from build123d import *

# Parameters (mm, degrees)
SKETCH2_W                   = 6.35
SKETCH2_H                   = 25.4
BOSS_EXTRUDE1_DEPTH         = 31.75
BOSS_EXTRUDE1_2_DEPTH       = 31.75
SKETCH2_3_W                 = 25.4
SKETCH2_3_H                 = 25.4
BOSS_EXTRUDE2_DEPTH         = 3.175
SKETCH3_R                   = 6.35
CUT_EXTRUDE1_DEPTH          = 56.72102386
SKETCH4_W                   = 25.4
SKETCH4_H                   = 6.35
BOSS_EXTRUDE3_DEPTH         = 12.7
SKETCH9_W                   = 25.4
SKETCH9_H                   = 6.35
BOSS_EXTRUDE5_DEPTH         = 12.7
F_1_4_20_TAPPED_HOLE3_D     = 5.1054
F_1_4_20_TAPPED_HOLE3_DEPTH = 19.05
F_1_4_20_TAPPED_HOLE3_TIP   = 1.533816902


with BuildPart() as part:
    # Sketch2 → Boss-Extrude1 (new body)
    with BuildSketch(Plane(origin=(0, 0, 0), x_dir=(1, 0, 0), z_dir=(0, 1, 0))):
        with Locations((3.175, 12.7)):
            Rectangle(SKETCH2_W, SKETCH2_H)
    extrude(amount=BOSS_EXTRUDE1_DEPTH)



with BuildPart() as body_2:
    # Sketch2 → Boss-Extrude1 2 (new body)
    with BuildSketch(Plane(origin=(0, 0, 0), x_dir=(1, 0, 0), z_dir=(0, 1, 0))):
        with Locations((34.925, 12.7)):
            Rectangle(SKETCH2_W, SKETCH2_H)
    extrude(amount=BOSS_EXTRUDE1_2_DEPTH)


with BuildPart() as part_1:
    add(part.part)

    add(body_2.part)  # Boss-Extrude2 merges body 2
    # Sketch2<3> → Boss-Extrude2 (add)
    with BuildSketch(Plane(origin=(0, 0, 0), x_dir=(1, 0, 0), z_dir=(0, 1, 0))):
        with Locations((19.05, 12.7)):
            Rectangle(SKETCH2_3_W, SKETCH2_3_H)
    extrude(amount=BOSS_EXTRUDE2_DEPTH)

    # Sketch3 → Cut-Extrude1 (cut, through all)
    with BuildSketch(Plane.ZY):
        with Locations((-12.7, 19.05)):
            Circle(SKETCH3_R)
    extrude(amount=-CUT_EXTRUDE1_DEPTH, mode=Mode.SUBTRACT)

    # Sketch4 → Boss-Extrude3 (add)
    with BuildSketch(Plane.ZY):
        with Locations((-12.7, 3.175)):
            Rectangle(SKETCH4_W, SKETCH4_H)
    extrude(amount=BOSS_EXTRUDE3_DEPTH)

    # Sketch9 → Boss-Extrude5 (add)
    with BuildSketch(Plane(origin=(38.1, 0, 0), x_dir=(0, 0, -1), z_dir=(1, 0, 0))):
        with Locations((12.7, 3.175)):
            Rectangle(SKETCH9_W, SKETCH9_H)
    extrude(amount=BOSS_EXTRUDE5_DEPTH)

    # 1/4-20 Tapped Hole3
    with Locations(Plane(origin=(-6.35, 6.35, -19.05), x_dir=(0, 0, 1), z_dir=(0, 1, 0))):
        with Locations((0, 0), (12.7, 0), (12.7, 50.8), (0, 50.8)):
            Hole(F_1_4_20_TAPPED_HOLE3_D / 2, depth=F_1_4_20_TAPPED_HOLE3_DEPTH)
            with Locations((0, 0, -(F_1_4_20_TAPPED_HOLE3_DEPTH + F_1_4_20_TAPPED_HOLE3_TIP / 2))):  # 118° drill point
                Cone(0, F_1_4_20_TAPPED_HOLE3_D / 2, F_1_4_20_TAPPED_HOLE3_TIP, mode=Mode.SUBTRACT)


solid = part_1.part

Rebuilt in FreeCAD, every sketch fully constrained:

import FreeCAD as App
import Part
import Sketcher
Q = App.Units.Quantity

doc = App.newDocument("Part")
params = doc.addObject("Spreadsheet::Sheet", "Params")
for row, (alias, value) in enumerate([
    ("sketch1_height", "1 in"),
    ("sketch1_width", "0.25 in"),
    ("pad1_length", "1.25 in"),
    ("sketch2_height", "1 in"),
    ("sketch2_width", "0.25 in"),
    ("pad2_length", "1.25 in"),
    ("sketch3_width", "1 in"),
    ("pad3_length", "0.125 in"),
    ("sketch4_diameter", "0.5 in"),
    ("sketch5_height", "1 in"),
    ("sketch5_width", "0.25 in"),
    ("pad4_length", "0.5 in"),
    ("sketch6_height", "1 in"),
    ("sketch6_width", "0.25 in"),
    ("pad5_length", "0.5 in"),
    ("sketch7_diameter", "0.201 in"),
    ("hole_diameter", "0.201 in"),
    ("hole_depth", "0.75 in"),
], start=1):
    params.set(f"A{row}", alias)
    params.set(f"B{row}", "=" + value)
    params.setAlias(f"B{row}", alias)

body = doc.addObject("PartDesign::Body", "Body")

# Sketch on XZ plane
sketch1 = body.newObject("Sketcher::SketchObject", "Sketch")
sketch1.AttachmentSupport = (doc.getObject("XZ_Plane"), [""])
sketch1.MapMode = "FlatFace"
sketch1.addGeometry([
    Part.LineSegment(App.Vector(0, -25, 0), App.Vector(0, 0, 0)),
    Part.LineSegment(App.Vector(0, 0, 0), App.Vector(6, 0, 0)),
    Part.LineSegment(App.Vector(6, 0, 0), App.Vector(6, -25, 0)),
    Part.LineSegment(App.Vector(6, -25, 0), App.Vector(0, -25, 0)),
], False)
sketch1.addConstraint([
    Sketcher.Constraint("Coincident", 0, 2, 1, 1),
    Sketcher.Constraint("Coincident", 1, 2, 2, 1),
    Sketcher.Constraint("Coincident", 2, 2, 3, 1),
    Sketcher.Constraint("Coincident", 3, 2, 0, 1),
    Sketcher.Constraint("Vertical", 0),
    Sketcher.Constraint("Horizontal", 1),
    Sketcher.Constraint("Vertical", 2),
    Sketcher.Constraint("Horizontal", 3),
    Sketcher.Constraint("Coincident", 0, 2, -1, 1),
    Sketcher.Constraint("DistanceY", 0, 1, 0, 2, Q("1 in")),
    Sketcher.Constraint("DistanceX", 1, 1, 1, 2, Q("0.25 in")),
])
sketch1.setExpression("Constraints[9]", "Params.sketch1_height")
sketch1.setExpression("Constraints[10]", "Params.sketch1_width")
pad1 = body.newObject("PartDesign::Pad", "Pad")
pad1.Profile = sketch1
pad1.setExpression("Length", "Params.pad1_length")
pad1.Reversed = True
body2 = doc.addObject("PartDesign::Body", "Body001")

# Sketch on XZ plane
sketch2 = body2.newObject("Sketcher::SketchObject", "Sketch001")
sketch2.AttachmentSupport = (doc.getObject("XZ_Plane001"), [""])
sketch2.MapMode = "FlatFace"
sketch2.addGeometry([
    Part.LineSegment(App.Vector(32, -25, 0), App.Vector(32, 0, 0)),
    Part.LineSegment(App.Vector(32, 0, 0), App.Vector(38, 0, 0)),
    Part.LineSegment(App.Vector(38, 0, 0), App.Vector(38, -25, 0)),
    Part.LineSegment(App.Vector(38, -25, 0), App.Vector(32, -25, 0)),
], False)
sketch2.addConstraint([
    Sketcher.Constraint("Coincident", 0, 2, 1, 1),
    Sketcher.Constraint("Coincident", 1, 2, 2, 1),
    Sketcher.Constraint("Coincident", 2, 2, 3, 1),
    Sketcher.Constraint("Coincident", 3, 2, 0, 1),
    Sketcher.Constraint("Vertical", 0),
    Sketcher.Constraint("Horizontal", 1),
    Sketcher.Constraint("Vertical", 2),
    Sketcher.Constraint("Horizontal", 3),
    Sketcher.Constraint("PointOnObject", 0, 2, -1),
    Sketcher.Constraint("DistanceY", 0, 1, 0, 2, Q("1 in")),
    Sketcher.Constraint("DistanceX", 1, 1, 1, 2, Q("0.25 in")),
    Sketcher.Constraint("DistanceX", -1, 1, 1, 2, Q("1.5 in")),
])
sketch2.setExpression("Constraints[9]", "Params.sketch2_height")
sketch2.setExpression("Constraints[10]", "Params.sketch2_width")
pad2 = body2.newObject("PartDesign::Pad", "Pad001")
pad2.Profile = sketch2
pad2.setExpression("Length", "Params.pad2_length")
pad2.Reversed = True
body.AllowCompound = True
doc.recompute()

boolean = body.newObject("PartDesign::Boolean", "Boolean")
boolean.Type = "Fuse"
boolean.addObjects([body2])

# Sketch on XZ plane
sketch3 = body.newObject("Sketcher::SketchObject", "Sketch002")
sketch3.AttachmentSupport = (doc.getObject("XZ_Plane"), [""])
sketch3.MapMode = "FlatFace"
sketch3.addGeometry([
    Part.LineSegment(App.Vector(6, -25, 0), App.Vector(6, 0, 0)),
    Part.LineSegment(App.Vector(6, 0, 0), App.Vector(32, 0, 0)),
    Part.LineSegment(App.Vector(32, 0, 0), App.Vector(32, -25, 0)),
    Part.LineSegment(App.Vector(32, -25, 0), App.Vector(6, -25, 0)),
], False)
sketch3.addConstraint([
    Sketcher.Constraint("Coincident", 0, 2, 1, 1),
    Sketcher.Constraint("Coincident", 1, 2, 2, 1),
    Sketcher.Constraint("Coincident", 2, 2, 3, 1),
    Sketcher.Constraint("Coincident", 3, 2, 0, 1),
    Sketcher.Constraint("Vertical", 0),
    Sketcher.Constraint("Horizontal", 1),
    Sketcher.Constraint("Vertical", 2),
    Sketcher.Constraint("Horizontal", 3),
    Sketcher.Constraint("PointOnObject", 0, 2, -1),
    Sketcher.Constraint("Equal", 3, 0),
    Sketcher.Constraint("DistanceX", 1, 1, 1, 2, Q("1 in")),
    Sketcher.Constraint("DistanceX", -1, 1, 0, 2, Q("0.25 in")),
])
sketch3.setExpression("Constraints[10]", "Params.sketch3_width")
pad3 = body.newObject("PartDesign::Pad", "Pad002")
pad3.Profile = sketch3
pad3.setExpression("Length", "Params.pad3_length")
pad3.Reversed = True

# Sketch on YZ plane
sketch4 = body.newObject("Sketcher::SketchObject", "Sketch003")
sketch4.AttachmentSupport = (doc.getObject("YZ_Plane"), [""])
sketch4.MapMode = "FlatFace"
sketch4.addGeometry(Part.Circle(App.Vector(19, -13, 0), App.Vector(0, 0, 1), 6), False)
sketch4.addConstraint([
    Sketcher.Constraint("Diameter", 0, Q("0.5 in")),
    Sketcher.Constraint("DistanceY", 0, 3, -1, 1, Q("0.5 in")),
    Sketcher.Constraint("DistanceX", -1, 1, 0, 3, Q("0.75 in")),
])
sketch4.setExpression("Constraints[0]", "Params.sketch4_diameter")
pocket1 = body.newObject("PartDesign::Pocket", "Pocket")
pocket1.Profile = sketch4
pocket1.Type = "ThroughAll"
pocket1.Reversed = True

# Sketch on YZ plane
sketch5 = body.newObject("Sketcher::SketchObject", "Sketch004")
sketch5.AttachmentSupport = (doc.getObject("YZ_Plane"), [""])
sketch5.MapMode = "FlatFace"
sketch5.addGeometry([
    Part.LineSegment(App.Vector(6, -25, 0), App.Vector(0, -25, 0)),
    Part.LineSegment(App.Vector(0, -25, 0), App.Vector(0, 0, 0)),
    Part.LineSegment(App.Vector(0, 0, 0), App.Vector(6, 0, 0)),
    Part.LineSegment(App.Vector(6, 0, 0), App.Vector(6, -25, 0)),
], False)
sketch5.addConstraint([
    Sketcher.Constraint("Coincident", 0, 2, 1, 1),
    Sketcher.Constraint("Coincident", 1, 2, 2, 1),
    Sketcher.Constraint("Coincident", 2, 2, 3, 1),
    Sketcher.Constraint("Coincident", 3, 2, 0, 1),
    Sketcher.Constraint("Horizontal", 0),
    Sketcher.Constraint("Vertical", 1),
    Sketcher.Constraint("Horizontal", 2),
    Sketcher.Constraint("Vertical", 3),
    Sketcher.Constraint("Coincident", 1, 2, -1, 1),
    Sketcher.Constraint("DistanceY", 1, 1, 1, 2, Q("1 in")),
    Sketcher.Constraint("DistanceX", 0, 2, 0, 1, Q("0.25 in")),
])
sketch5.setExpression("Constraints[9]", "Params.sketch5_height")
sketch5.setExpression("Constraints[10]", "Params.sketch5_width")
pad4 = body.newObject("PartDesign::Pad", "Pad003")
pad4.Profile = sketch5
pad4.setExpression("Length", "Params.pad4_length")
pad4.Reversed = True

# Sketch on YZ plane
sketch6 = body.newObject("Sketcher::SketchObject", "Sketch005")
sketch6.AttachmentSupport = (doc.getObject("YZ_Plane"), [""])
sketch6.MapMode = "FlatFace"
sketch6.AttachmentOffset = App.Placement(App.Vector(0, 0, 1.5 * 25.4), App.Rotation())
sketch6.addGeometry([
    Part.LineSegment(App.Vector(6, 0, 0), App.Vector(0, 0, 0)),
    Part.LineSegment(App.Vector(0, 0, 0), App.Vector(0, -25, 0)),
    Part.LineSegment(App.Vector(0, -25, 0), App.Vector(6, -25, 0)),
    Part.LineSegment(App.Vector(6, -25, 0), App.Vector(6, 0, 0)),
], False)
sketch6.addConstraint([
    Sketcher.Constraint("Coincident", 0, 2, 1, 1),
    Sketcher.Constraint("Coincident", 1, 2, 2, 1),
    Sketcher.Constraint("Coincident", 2, 2, 3, 1),
    Sketcher.Constraint("Coincident", 3, 2, 0, 1),
    Sketcher.Constraint("Horizontal", 0),
    Sketcher.Constraint("Vertical", 1),
    Sketcher.Constraint("Horizontal", 2),
    Sketcher.Constraint("Vertical", 3),
    Sketcher.Constraint("Coincident", 0, 2, -1, 1),
    Sketcher.Constraint("DistanceY", 1, 2, 1, 1, Q("1 in")),
    Sketcher.Constraint("DistanceX", 0, 2, 0, 1, Q("0.25 in")),
])
sketch6.setExpression("Constraints[9]", "Params.sketch6_height")
sketch6.setExpression("Constraints[10]", "Params.sketch6_width")
pad5 = body.newObject("PartDesign::Pad", "Pad004")
pad5.Profile = sketch6
pad5.setExpression("Length", "Params.pad5_length")

# Sketch on XZ plane
sketch7 = body.newObject("Sketcher::SketchObject", "Sketch006")
sketch7.AttachmentSupport = (doc.getObject("XZ_Plane"), [""])
sketch7.MapMode = "FlatFace"
sketch7.AttachmentOffset = App.Placement(App.Vector(0, 0, -0.25 * 25.4), App.Rotation())
sketch7.addGeometry([
    Part.Circle(App.Vector(-6.3, -19.1, 0), App.Vector(0, 0, 1), 2.6),
    Part.Circle(App.Vector(-6.3, -6.3, 0), App.Vector(0, 0, 1), 2.6),
    Part.Circle(App.Vector(44.5, -6.3, 0), App.Vector(0, 0, 1), 2.6),
    Part.Circle(App.Vector(44.5, -19.1, 0), App.Vector(0, 0, 1), 2.6),
], False)
sketch7.addConstraint([
    Sketcher.Constraint("Equal", 0, 1),
    Sketcher.Constraint("Equal", 1, 2),
    Sketcher.Constraint("Equal", 2, 3),
    Sketcher.Constraint("Horizontal", 1, 3, 2, 3),
    Sketcher.Constraint("Horizontal", 0, 3, 3, 3),
    Sketcher.Constraint("Vertical", 0, 3, 1, 3),
    Sketcher.Constraint("Vertical", 2, 3, 3, 3),
    Sketcher.Constraint("Diameter", 0, Q("0.201 in")),
    Sketcher.Constraint("DistanceX", 1, 3, 2, 3, Q("2 in")),
    Sketcher.Constraint("DistanceY", 0, 3, 1, 3, Q("0.5 in")),
    Sketcher.Constraint("DistanceX", 0, 3, -1, 1, Q("0.25 in")),
    Sketcher.Constraint("DistanceY", 0, 3, -1, 1, Q("0.75 in")),
])
sketch7.setExpression("Constraints[7]", "Params.sketch7_diameter")
doc.recompute()
hole = body.newObject("PartDesign::Hole", "Hole")
hole.Profile = sketch7
hole.ThreadType = "None"
hole.setExpression("Diameter", "Params.hole_diameter")
hole.DepthType = "Dimension"
hole.setExpression("Depth", "Params.hole_depth")
hole.DrillPoint = "Angled"
hole.DrillPointAngle = 118
hole.Reversed = True

doc.recompute()
